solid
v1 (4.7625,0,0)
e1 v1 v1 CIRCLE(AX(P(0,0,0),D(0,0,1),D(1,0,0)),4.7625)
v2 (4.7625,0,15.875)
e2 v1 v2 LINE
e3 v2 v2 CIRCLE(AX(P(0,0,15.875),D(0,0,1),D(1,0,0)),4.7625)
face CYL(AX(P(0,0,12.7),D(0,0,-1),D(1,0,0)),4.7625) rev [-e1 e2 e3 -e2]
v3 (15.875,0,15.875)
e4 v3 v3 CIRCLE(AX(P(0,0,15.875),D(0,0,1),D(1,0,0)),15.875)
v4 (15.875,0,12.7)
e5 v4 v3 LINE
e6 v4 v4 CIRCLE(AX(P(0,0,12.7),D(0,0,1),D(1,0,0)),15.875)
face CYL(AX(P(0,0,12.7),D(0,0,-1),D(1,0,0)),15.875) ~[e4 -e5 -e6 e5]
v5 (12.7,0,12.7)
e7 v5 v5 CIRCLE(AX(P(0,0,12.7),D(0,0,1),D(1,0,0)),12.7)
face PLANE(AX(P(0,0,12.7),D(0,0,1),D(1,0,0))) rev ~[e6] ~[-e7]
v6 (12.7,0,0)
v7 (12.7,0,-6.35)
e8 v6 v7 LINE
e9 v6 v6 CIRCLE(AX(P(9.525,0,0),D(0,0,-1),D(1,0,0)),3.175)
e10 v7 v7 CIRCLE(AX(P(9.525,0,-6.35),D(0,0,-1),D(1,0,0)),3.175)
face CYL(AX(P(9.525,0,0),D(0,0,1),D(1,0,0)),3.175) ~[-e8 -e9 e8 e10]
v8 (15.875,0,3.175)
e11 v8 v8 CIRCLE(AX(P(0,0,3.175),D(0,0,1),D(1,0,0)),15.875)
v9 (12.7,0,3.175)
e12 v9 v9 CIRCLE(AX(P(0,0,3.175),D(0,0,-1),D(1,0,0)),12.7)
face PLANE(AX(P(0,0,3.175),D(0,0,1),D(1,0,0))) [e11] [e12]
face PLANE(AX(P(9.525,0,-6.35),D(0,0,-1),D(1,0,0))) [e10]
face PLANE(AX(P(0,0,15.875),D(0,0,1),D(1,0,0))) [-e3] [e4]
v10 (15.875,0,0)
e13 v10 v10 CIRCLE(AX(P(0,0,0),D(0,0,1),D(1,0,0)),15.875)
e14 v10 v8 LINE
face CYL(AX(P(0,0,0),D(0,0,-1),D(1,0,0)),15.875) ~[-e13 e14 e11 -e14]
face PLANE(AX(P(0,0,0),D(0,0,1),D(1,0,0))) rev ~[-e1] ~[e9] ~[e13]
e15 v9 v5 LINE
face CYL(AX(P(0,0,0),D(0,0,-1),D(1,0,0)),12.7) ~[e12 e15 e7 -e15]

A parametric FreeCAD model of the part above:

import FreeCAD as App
import Part
import Sketcher

V = App.Vector
Q = App.Units.Quantity

doc = App.newDocument("Part")
body = doc.addObject("PartDesign::Body", "Body")

sketch1 = body.newObject("Sketcher::SketchObject", "Sketch")
sketch1.AttachmentSupport = (doc.getObject("XY_Plane"), [""])
sketch1.MapMode = "FlatFace"
sketch1.addGeometry(Part.Circle(V(0, 0, 0), V(0, 0, 1), 12.7), False)
sketch1.addGeometry(Part.Circle(V(0, 0, 0), V(0, 0, 1), 4.7625), False)
sketch1.addConstraint(Sketcher.Constraint("Coincident", 0, 3, -1, 1))
sketch1.addConstraint(Sketcher.Constraint("Coincident", 1, 3, -1, 1))
sketch1.addConstraint(Sketcher.Constraint("Diameter", 0, Q("1 in")))
sketch1.addConstraint(Sketcher.Constraint("Diameter", 1, Q("0.375 in")))
pad1 = body.newObject("PartDesign::Pad", "Pad")
pad1.Profile = sketch1
pad1.Length = Q("0.5 in")

sketch2 = body.newObject("Sketcher::SketchObject", "Sketch001")
sketch2.AttachmentSupport = (doc.getObject("XY_Plane"), [""])
sketch2.MapMode = "FlatFace"
sketch2.AttachmentOffset = App.Placement(V(0, 0, 0.5 * 25.4), App.Rotation())
sketch2.addGeometry(Part.Circle(V(0, 0, 0), V(0, 0, 1), 15.875), False)
sketch2.addGeometry(Part.Circle(V(0, 0, 0), V(0, 0, 1), 4.7625), False)
sketch2.addConstraint(Sketcher.Constraint("Coincident", 0, 3, -1, 1))
sketch2.addConstraint(Sketcher.Constraint("Coincident", 1, 3, -1, 1))
sketch2.addConstraint(Sketcher.Constraint("Diameter", 0, Q("1.25 in")))
sketch2.addConstraint(Sketcher.Constraint("Diameter", 1, Q("0.375 in")))
pad2 = body.newObject("PartDesign::Pad", "Pad001")
pad2.Profile = sketch2
pad2.Length = Q("0.125 in")

sketch3 = body.newObject("Sketcher::SketchObject", "Sketch002")
sketch3.AttachmentSupport = (doc.getObject("XY_Plane"), [""])
sketch3.MapMode = "FlatFace"
sketch3.addGeometry(Part.Circle(V(0, 0, 0), V(0, 0, 1), 15.875), False)
sketch3.addGeometry(Part.Circle(V(0, 0, 0), V(0, 0, 1), 4.7625), False)
sketch3.addConstraint(Sketcher.Constraint("Coincident", 0, 3, -1, 1))
sketch3.addConstraint(Sketcher.Constraint("Coincident", 1, 3, -1, 1))
sketch3.addConstraint(Sketcher.Constraint("Diameter", 0, Q("1.25 in")))
sketch3.addConstraint(Sketcher.Constraint("Diameter", 1, Q("0.375 in")))
pad3 = body.newObject("PartDesign::Pad", "Pad002")
pad3.Profile = sketch3
pad3.Length = Q("0.125 in")

sketch4 = body.newObject("Sketcher::SketchObject", "Sketch003")
sketch4.AttachmentSupport = (doc.getObject("XY_Plane"), [""])
sketch4.MapMode = "FlatFace"
sketch4.addGeometry(Part.Circle(V(9.525, 0, 0), V(0, 0, 1), 3.175), False)
sketch4.addConstraint(Sketcher.Constraint("PointOnObject", 0, 3, -1))
sketch4.addConstraint(Sketcher.Constraint("Diameter", 0, Q("0.25 in")))
sketch4.addConstraint(Sketcher.Constraint("DistanceX", -1, 1, 0, 3, Q("0.375 in")))
pad4 = body.newObject("PartDesign::Pad", "Pad003")
pad4.Profile = sketch4
pad4.Length = Q("0.25 in")
pad4.Reversed = True

doc.recompute()
